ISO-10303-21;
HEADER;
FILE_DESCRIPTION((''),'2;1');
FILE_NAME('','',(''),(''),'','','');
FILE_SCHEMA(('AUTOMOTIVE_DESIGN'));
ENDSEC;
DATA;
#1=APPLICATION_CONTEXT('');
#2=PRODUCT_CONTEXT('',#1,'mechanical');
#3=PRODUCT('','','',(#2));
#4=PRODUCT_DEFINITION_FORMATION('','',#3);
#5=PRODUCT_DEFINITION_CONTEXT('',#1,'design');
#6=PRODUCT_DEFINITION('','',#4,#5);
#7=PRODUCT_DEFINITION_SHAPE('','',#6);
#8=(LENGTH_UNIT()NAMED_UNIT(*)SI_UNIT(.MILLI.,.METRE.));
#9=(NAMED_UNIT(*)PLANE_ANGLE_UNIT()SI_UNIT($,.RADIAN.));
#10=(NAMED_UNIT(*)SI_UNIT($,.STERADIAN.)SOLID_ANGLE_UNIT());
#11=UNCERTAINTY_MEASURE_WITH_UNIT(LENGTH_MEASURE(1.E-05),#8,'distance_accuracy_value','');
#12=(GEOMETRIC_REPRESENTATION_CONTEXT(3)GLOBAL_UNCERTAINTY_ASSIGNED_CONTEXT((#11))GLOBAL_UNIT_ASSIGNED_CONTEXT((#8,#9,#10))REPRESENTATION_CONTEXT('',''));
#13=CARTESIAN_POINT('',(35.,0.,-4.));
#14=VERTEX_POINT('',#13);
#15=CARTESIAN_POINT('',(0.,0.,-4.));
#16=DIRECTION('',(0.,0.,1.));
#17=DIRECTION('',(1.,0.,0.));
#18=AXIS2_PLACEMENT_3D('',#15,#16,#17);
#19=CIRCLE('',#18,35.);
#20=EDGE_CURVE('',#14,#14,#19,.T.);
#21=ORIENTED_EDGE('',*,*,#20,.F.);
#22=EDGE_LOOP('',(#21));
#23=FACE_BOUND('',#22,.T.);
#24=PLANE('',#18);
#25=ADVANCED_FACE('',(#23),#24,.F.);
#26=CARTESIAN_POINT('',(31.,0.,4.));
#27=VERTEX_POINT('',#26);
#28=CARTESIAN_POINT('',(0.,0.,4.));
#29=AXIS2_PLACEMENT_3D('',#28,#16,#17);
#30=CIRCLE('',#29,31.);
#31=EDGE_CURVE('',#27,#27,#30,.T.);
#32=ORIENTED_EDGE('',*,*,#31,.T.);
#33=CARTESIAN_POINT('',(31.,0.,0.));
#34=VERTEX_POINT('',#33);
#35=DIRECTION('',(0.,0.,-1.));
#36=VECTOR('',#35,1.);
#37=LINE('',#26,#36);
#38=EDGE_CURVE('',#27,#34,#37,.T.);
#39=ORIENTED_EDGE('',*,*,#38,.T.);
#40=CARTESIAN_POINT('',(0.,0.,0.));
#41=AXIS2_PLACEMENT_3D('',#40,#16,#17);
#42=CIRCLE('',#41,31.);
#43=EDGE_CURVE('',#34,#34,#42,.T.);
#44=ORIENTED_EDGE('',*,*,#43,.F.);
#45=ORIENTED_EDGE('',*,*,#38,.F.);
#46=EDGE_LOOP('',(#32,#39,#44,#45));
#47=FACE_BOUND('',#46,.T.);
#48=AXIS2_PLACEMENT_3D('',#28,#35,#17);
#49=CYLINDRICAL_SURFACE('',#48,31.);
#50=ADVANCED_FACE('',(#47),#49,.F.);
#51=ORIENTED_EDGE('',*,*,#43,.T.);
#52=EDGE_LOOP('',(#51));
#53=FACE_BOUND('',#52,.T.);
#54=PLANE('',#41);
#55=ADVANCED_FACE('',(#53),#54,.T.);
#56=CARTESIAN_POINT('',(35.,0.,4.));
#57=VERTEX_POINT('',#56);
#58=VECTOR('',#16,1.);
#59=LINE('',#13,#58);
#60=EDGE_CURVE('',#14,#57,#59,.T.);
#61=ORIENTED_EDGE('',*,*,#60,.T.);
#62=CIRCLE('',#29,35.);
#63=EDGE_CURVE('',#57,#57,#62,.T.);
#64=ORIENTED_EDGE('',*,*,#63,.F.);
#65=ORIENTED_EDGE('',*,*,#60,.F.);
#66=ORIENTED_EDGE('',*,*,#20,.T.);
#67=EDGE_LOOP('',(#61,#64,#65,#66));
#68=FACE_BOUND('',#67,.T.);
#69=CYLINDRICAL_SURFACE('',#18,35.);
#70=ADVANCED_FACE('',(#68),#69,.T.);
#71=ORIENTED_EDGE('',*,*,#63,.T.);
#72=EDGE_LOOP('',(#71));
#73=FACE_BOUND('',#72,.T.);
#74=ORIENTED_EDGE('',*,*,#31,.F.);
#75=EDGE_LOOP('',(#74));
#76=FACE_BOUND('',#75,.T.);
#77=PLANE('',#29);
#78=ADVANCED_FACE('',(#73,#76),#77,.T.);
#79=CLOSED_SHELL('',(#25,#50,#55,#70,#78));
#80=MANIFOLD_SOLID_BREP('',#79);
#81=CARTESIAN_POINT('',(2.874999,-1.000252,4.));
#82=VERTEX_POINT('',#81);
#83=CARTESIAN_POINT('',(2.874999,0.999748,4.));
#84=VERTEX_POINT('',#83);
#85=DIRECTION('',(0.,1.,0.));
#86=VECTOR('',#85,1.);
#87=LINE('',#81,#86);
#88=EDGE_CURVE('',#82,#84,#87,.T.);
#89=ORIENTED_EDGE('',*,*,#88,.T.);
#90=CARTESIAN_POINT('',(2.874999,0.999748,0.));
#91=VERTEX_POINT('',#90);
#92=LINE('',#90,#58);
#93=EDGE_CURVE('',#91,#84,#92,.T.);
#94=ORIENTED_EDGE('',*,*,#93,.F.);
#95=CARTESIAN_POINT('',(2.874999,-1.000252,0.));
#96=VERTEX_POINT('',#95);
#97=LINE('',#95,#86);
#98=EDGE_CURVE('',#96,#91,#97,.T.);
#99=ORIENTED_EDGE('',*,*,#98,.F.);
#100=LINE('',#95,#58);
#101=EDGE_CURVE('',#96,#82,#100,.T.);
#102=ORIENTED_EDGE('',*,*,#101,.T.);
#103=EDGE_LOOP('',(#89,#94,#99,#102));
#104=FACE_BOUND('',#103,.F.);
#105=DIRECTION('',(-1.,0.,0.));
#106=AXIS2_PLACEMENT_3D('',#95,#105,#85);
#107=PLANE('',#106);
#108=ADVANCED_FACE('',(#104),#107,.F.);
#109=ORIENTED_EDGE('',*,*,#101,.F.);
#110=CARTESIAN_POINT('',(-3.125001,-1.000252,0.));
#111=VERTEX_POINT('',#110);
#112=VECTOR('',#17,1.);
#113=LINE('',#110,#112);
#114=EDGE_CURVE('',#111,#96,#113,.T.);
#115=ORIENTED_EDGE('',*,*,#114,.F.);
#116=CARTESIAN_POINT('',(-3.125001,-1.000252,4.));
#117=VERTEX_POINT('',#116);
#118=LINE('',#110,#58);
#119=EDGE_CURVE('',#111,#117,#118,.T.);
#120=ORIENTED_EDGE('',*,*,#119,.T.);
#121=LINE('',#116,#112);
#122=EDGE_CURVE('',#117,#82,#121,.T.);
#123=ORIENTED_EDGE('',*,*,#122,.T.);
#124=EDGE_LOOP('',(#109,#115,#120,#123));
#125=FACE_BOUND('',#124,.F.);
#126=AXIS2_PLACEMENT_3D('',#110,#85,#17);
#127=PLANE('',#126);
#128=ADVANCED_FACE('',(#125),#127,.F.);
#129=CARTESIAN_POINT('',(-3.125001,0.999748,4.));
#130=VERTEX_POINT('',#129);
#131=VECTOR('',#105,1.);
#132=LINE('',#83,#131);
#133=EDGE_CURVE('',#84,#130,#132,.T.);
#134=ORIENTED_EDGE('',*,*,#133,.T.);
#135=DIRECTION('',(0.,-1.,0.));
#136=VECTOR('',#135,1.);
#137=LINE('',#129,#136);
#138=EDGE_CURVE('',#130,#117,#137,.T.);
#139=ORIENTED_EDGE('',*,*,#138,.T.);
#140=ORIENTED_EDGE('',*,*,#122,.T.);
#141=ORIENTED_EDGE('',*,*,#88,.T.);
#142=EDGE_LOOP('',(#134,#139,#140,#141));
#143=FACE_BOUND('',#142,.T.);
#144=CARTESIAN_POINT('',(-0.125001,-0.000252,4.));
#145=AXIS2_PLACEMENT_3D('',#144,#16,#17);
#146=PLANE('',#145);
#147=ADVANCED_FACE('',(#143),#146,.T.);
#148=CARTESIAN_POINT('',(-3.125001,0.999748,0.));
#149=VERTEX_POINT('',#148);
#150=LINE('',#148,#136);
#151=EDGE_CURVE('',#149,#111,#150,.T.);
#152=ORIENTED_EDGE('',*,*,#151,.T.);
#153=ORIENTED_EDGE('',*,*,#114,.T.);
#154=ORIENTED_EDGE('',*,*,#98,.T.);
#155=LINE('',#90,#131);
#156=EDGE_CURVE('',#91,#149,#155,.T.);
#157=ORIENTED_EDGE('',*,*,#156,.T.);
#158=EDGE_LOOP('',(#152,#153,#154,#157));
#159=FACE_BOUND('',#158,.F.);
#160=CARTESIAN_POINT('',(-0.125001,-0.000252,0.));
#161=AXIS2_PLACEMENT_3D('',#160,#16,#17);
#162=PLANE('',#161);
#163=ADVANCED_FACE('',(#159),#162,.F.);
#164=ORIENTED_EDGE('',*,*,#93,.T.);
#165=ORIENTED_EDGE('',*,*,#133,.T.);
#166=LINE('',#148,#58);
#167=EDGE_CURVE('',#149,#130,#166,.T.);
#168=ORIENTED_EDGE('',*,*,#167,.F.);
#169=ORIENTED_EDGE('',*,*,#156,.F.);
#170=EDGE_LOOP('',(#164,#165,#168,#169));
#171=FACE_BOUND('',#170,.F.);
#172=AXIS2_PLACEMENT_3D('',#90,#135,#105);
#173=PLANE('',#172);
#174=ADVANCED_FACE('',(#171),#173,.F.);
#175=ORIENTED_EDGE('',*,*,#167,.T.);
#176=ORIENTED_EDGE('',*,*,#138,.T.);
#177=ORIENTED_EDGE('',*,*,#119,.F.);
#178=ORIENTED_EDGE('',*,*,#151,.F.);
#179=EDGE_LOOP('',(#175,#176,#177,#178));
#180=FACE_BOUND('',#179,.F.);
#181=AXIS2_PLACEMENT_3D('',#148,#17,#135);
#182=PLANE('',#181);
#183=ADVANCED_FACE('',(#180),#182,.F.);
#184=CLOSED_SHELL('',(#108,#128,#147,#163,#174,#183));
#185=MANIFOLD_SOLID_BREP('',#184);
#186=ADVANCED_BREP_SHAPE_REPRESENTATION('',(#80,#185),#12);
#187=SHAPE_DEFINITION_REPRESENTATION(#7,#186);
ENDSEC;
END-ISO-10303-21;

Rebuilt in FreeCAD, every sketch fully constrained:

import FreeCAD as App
import Part
import Sketcher

V = App.Vector


def add_polygon(sketch, points):
    """Adds a closed chain of lines whose ends are joined by coincident constraints."""
    first, n = sketch.GeometryCount, len(points)
    for a, b in zip(points, points[1:] + points[:1]):
        sketch.addGeometry(Part.LineSegment(App.Vector(*a, 0), App.Vector(*b, 0)), False)
    for i in range(n):
        sketch.addConstraint(Sketcher.Constraint("Coincident", first + i, 2, first + (i + 1) % n, 1))

doc = App.newDocument("Part")
body = doc.addObject("PartDesign::Body", "Body")

# Sketch on XZ plane
sketch1 = doc.addObject("Sketcher::SketchObject", "Sketch")
body.addObject(sketch1)
sketch1.AttachmentSupport = (doc.XZ_Plane, [""])
sketch1.MapMode = "FlatFace"
add_polygon(sketch1, [(31, 0), (0, 0), (0, -4), (35, -4), (35, 4), (31, 4)])  # lines 0-5
sketch1.addConstraint(Sketcher.Constraint("Horizontal", 0))
sketch1.addConstraint(Sketcher.Constraint("Vertical", 1))
sketch1.addConstraint(Sketcher.Constraint("Horizontal", 2))
sketch1.addConstraint(Sketcher.Constraint("Vertical", 3))
sketch1.addConstraint(Sketcher.Constraint("Horizontal", 4))
sketch1.addConstraint(Sketcher.Constraint("Vertical", 5))
sketch1.addConstraint(Sketcher.Constraint("Coincident", 0, 2, -1, 1))
sketch1.addConstraint(Sketcher.Constraint("Equal", 4, 1))
sketch1.addConstraint(Sketcher.Constraint("Equal", 1, 5))
sketch1.addConstraint(Sketcher.Constraint("DistanceX", 0, 2, 0, 1, 31.0))
sketch1.addConstraint(Sketcher.Constraint("DistanceX", 2, 1, 2, 2, 35.0))
revolution = doc.addObject("PartDesign::Revolution", "Revolution")
body.addObject(revolution)
revolution.Profile = sketch1
revolution.ReferenceAxis = (sketch1, ["V_Axis"])
revolution.Angle = 360
body2 = doc.addObject("PartDesign::Body", "Body001")

# Sketch on XY plane
sketch2 = doc.addObject("Sketcher::SketchObject", "Sketch001")
body2.addObject(sketch2)
sketch2.AttachmentSupport = (doc.getObject("XY_Plane001"), [""])
sketch2.MapMode = "FlatFace"
add_polygon(sketch2, [(-3.125001, 0.999748), (-3.125001, -1.000252), (2.874999, -1.000252), (2.874999, 0.999748)])  # lines 0-3
sketch2.addConstraint(Sketcher.Constraint("Vertical", 0))
sketch2.addConstraint(Sketcher.Constraint("Horizontal", 1))
sketch2.addConstraint(Sketcher.Constraint("Vertical", 2))
sketch2.addConstraint(Sketcher.Constraint("Horizontal", 3))
sketch2.addConstraint(Sketcher.Constraint("DistanceX", 1, 1, 1, 2, 6.0))
sketch2.addConstraint(Sketcher.Constraint("DistanceY", 0, 2, 0, 1, 2.0))
sketch2.addConstraint(Sketcher.Constraint("DistanceX", 0, 2, -1, 1, 3.125001))
sketch2.addConstraint(Sketcher.Constraint("DistanceY", 0, 2, -1, 1, 1.000252))
pad1 = doc.addObject("PartDesign::Pad", "Pad")
body2.addObject(pad1)
pad1.Profile = sketch2
pad1.Length = 4

doc.recompute()
